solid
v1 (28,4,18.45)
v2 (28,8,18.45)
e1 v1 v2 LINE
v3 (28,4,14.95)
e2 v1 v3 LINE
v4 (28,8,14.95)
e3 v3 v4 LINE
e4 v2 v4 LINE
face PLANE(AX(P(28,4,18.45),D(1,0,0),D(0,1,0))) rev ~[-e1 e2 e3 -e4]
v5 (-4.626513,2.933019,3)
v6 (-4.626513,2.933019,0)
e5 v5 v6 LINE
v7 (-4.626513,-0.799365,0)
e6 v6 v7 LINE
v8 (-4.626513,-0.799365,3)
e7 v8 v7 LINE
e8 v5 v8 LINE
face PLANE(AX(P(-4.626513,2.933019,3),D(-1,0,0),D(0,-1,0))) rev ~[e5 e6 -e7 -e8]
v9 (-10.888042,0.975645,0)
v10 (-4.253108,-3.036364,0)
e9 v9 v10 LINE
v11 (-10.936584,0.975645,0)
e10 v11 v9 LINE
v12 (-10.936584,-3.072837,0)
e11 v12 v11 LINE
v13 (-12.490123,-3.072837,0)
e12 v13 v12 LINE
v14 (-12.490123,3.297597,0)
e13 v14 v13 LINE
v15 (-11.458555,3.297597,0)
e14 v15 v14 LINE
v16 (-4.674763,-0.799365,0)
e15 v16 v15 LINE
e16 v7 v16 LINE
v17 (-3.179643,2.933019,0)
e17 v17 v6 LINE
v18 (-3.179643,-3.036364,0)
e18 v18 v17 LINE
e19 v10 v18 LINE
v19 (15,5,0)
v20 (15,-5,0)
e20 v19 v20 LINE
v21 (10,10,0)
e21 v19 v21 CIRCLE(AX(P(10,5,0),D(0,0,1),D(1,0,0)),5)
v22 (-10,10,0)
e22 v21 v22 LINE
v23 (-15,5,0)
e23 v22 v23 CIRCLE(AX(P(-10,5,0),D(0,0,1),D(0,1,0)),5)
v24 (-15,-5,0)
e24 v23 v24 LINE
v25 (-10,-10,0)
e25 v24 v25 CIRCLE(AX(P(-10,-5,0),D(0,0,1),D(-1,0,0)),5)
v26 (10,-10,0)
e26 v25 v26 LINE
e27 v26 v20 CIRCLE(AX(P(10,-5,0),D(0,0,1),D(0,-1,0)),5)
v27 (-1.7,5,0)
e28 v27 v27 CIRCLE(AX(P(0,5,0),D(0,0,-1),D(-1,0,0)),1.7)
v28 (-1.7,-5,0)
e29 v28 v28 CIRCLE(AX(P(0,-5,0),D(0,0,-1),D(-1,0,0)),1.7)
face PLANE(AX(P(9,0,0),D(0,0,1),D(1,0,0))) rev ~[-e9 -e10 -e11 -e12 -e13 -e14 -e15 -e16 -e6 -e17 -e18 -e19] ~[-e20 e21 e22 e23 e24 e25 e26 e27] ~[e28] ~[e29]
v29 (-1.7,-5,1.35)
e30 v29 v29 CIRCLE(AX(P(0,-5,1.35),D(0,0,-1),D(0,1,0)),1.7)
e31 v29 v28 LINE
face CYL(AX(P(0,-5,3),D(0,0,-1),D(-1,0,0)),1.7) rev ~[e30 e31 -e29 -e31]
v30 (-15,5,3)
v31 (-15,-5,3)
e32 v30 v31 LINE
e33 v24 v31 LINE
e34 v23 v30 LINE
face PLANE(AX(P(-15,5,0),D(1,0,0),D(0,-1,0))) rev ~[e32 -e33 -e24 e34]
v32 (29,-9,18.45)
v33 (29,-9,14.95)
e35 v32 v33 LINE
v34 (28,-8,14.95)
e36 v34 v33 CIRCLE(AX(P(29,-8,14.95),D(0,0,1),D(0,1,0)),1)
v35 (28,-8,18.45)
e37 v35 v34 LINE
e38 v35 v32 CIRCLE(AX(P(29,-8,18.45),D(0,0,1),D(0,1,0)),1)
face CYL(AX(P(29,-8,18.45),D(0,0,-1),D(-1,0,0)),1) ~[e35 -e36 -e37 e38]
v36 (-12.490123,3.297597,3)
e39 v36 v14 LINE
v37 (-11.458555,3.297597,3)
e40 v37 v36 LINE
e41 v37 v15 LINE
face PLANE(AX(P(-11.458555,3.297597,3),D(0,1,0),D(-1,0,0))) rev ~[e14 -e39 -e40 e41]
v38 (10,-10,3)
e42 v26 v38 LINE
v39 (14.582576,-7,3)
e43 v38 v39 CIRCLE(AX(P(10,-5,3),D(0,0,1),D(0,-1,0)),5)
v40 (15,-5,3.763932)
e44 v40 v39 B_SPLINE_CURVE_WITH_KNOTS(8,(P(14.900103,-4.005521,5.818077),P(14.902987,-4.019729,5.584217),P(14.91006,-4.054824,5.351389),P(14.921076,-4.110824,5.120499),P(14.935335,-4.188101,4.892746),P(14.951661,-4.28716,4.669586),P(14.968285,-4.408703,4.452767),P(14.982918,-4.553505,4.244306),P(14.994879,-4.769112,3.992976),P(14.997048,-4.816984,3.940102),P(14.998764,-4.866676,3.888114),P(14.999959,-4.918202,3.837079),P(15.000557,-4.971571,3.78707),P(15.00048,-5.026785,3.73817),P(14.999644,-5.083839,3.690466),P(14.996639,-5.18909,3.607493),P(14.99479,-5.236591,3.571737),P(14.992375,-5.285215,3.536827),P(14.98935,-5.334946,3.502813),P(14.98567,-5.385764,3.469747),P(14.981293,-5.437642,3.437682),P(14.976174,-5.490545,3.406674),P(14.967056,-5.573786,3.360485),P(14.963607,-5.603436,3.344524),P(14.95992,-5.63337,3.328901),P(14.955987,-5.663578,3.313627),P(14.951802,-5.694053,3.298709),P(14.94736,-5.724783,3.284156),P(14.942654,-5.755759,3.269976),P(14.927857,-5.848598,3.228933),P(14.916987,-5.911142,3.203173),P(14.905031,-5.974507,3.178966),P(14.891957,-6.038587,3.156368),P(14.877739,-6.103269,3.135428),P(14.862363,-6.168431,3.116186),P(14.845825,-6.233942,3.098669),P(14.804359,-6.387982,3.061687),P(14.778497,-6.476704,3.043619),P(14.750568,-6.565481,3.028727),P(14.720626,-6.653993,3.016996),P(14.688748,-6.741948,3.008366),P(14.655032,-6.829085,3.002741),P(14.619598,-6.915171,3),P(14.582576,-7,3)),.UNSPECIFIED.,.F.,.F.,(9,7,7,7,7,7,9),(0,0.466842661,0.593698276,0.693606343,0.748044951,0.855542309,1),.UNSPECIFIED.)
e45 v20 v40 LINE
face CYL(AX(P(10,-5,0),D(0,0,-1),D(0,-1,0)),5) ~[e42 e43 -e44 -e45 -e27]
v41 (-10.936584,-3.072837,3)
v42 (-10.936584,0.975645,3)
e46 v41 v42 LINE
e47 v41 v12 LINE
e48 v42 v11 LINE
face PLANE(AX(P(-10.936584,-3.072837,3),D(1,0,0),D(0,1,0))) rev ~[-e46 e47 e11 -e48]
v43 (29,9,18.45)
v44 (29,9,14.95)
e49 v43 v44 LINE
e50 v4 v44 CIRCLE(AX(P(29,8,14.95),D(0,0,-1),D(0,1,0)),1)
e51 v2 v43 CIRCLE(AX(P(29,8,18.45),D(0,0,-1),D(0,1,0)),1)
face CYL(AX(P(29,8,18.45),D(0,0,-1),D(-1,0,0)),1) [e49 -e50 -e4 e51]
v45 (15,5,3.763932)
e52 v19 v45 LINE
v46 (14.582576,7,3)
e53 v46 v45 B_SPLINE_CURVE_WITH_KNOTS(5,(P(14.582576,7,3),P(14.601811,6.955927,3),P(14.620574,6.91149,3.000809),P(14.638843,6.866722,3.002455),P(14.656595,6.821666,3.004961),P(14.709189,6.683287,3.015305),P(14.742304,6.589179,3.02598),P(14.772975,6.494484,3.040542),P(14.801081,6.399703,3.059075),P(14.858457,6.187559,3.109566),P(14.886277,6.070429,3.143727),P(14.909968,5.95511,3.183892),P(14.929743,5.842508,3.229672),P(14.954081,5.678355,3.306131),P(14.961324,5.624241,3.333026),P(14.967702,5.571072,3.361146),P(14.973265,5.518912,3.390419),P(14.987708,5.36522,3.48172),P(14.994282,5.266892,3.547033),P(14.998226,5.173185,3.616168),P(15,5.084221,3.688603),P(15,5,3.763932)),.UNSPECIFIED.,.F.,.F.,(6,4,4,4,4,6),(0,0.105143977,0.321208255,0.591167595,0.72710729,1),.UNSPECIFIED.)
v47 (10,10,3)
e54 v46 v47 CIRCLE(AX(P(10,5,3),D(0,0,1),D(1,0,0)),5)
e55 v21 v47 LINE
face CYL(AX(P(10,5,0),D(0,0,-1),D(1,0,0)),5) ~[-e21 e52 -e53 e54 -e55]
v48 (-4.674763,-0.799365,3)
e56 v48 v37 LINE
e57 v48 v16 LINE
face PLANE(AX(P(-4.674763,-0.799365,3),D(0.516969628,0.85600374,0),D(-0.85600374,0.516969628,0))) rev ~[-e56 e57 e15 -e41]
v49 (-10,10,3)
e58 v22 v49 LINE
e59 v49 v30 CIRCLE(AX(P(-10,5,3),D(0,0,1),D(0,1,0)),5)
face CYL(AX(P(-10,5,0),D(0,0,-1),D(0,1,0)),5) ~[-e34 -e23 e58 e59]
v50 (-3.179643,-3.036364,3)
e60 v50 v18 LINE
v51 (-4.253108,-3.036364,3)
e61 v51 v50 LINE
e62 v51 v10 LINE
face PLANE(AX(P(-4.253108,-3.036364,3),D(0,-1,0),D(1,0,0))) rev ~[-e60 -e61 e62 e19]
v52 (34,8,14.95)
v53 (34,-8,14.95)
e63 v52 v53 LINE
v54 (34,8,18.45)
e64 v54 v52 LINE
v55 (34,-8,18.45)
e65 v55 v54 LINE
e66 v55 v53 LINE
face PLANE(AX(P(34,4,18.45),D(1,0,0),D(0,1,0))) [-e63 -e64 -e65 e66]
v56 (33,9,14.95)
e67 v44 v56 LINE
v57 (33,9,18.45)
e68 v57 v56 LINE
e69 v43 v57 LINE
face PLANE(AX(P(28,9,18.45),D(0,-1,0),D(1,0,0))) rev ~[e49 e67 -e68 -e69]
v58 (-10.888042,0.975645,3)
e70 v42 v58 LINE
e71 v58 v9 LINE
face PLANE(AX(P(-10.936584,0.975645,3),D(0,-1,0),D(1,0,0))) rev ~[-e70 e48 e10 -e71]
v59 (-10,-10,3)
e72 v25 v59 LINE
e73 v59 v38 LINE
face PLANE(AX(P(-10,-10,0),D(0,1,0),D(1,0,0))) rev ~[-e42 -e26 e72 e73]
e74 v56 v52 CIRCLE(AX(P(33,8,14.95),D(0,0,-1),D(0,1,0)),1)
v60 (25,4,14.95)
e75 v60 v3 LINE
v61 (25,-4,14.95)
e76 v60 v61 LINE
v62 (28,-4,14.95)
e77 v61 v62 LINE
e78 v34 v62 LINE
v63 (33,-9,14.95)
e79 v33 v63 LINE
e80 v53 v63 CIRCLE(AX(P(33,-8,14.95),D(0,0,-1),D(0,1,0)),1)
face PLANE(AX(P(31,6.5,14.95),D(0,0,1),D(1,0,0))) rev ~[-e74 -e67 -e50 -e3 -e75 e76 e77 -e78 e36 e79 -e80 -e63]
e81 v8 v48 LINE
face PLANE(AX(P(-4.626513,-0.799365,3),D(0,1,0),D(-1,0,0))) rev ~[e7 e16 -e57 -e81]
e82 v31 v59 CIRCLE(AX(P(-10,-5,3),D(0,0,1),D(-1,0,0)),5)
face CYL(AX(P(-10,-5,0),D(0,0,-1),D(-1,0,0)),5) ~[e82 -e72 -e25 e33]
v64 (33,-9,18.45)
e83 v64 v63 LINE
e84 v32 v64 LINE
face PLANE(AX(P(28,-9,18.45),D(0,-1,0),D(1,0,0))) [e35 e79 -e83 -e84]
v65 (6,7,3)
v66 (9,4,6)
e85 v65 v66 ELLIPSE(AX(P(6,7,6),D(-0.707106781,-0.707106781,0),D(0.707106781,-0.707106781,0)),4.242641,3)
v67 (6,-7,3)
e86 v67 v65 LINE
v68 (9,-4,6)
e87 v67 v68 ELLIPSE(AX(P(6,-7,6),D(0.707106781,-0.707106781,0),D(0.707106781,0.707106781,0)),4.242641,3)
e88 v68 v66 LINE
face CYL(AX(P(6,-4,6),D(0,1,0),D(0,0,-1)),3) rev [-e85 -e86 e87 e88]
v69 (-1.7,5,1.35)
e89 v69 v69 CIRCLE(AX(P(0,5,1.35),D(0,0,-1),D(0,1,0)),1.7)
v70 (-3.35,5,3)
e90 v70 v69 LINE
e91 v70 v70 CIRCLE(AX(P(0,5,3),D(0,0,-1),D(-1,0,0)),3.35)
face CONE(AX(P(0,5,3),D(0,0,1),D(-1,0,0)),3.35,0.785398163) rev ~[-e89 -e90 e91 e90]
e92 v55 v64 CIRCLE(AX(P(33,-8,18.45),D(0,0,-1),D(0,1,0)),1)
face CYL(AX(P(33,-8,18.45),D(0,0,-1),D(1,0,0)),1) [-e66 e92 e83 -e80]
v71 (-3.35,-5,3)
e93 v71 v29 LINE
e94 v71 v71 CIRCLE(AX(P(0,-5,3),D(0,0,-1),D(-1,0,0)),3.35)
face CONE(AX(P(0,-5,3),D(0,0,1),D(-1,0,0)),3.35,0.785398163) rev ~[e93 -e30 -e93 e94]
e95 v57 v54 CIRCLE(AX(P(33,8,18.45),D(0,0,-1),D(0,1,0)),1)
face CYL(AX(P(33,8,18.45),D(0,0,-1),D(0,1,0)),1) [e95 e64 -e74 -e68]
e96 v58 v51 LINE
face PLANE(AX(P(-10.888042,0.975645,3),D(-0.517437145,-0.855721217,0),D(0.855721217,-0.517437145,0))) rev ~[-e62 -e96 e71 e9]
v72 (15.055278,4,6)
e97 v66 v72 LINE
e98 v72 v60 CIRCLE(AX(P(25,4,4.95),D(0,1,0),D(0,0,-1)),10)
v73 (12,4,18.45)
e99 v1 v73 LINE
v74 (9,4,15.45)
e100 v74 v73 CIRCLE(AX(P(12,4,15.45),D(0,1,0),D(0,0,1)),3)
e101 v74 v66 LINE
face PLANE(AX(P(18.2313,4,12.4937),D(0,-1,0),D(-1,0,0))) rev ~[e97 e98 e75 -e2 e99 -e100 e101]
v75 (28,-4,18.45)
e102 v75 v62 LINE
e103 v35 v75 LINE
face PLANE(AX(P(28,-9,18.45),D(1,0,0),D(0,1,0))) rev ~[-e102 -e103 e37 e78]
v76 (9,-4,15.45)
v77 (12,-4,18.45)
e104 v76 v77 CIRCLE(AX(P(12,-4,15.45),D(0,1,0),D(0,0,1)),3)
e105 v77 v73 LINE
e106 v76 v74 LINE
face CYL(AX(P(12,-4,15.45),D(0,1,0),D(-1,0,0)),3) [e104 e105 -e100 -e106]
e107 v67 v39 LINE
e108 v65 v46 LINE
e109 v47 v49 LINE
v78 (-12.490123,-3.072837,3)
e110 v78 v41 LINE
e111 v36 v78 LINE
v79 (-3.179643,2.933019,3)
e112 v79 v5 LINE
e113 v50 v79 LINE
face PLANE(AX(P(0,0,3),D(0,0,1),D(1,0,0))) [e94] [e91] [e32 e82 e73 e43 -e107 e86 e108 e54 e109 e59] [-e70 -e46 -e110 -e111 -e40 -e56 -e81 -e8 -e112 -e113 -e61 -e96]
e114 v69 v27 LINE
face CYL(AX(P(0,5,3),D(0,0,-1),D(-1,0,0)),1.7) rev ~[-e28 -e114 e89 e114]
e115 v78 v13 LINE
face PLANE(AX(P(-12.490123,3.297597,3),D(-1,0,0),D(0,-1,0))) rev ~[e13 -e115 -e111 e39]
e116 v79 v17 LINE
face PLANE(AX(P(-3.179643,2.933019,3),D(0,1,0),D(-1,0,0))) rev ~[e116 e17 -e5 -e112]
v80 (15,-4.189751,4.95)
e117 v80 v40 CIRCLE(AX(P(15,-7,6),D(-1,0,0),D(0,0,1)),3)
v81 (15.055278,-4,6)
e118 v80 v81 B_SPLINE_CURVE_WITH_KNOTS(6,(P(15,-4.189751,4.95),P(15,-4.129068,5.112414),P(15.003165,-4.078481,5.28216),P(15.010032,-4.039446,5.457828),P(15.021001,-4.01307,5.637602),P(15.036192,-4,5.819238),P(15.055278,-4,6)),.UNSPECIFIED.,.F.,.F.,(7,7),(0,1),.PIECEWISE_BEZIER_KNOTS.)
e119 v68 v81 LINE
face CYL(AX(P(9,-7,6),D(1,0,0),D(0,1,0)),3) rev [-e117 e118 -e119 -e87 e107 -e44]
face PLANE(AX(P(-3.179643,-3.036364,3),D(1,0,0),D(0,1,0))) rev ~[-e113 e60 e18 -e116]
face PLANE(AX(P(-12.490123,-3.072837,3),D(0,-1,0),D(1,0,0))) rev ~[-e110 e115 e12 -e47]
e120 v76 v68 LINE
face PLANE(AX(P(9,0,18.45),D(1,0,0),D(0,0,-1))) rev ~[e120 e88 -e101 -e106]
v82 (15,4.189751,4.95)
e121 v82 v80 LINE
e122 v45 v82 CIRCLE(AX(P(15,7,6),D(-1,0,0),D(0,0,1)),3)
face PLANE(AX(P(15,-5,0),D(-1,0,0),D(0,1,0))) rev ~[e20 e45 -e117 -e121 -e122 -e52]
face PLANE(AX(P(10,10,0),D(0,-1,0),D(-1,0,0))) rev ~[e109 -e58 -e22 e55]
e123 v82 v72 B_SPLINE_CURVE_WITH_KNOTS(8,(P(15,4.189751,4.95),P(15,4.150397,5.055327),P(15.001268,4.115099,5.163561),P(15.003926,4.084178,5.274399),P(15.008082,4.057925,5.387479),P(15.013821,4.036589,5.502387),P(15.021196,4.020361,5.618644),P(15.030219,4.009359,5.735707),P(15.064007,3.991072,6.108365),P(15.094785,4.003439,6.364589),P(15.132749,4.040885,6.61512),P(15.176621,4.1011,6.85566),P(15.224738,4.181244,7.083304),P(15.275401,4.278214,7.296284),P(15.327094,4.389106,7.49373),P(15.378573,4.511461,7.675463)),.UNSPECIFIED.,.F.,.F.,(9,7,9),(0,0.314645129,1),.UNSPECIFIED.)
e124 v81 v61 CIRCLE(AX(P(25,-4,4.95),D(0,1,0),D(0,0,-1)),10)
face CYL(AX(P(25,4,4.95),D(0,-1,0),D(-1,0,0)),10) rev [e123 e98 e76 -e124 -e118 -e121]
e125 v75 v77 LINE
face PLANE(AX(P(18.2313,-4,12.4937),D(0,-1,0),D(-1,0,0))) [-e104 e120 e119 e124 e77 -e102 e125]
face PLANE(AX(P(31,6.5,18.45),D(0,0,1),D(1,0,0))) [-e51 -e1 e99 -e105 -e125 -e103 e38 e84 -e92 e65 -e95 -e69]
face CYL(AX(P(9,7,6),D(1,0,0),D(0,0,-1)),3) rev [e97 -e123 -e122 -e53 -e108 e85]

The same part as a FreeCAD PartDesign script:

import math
import FreeCAD as App
import Part
import Sketcher

V = App.Vector
Q = App.Units.Quantity


def edges_at(feature, points):
    """Names of the edges that pass closest to the given points."""
    edges = feature.Shape.Edges
    near = lambda p: min(range(len(edges)), key=lambda i: edges[i].distToShape(Part.Vertex(*p))[0])
    return sorted({f"Edge{near(p) + 1}" for p in points})


def add_polygon(sketch, points):
    """Adds a closed chain of lines whose ends are joined by coincident constraints."""
    first, n = sketch.GeometryCount, len(points)
    for a, b in zip(points, points[1:] + points[:1]):
        sketch.addGeometry(Part.LineSegment(App.Vector(*a, 0), App.Vector(*b, 0)), False)
    for i in range(n):
        sketch.addConstraint(Sketcher.Constraint("Coincident", first + i, 2, first + (i + 1) % n, 1))

doc = App.newDocument("Part")
body = doc.addObject("PartDesign::Body", "Body")

# Sketch on XY plane
sketch1 = doc.addObject("Sketcher::SketchObject", "Sketch")
body.addObject(sketch1)
sketch1.AttachmentSupport = (doc.XY_Plane, [""])
sketch1.MapMode = "FlatFace"
sketch1.addGeometry([
    Part.LineSegment(V(-10, -10, 0), V(10, -10, 0)),  # 0
    Part.ArcOfCircle(Part.Circle(V(10, -5, 0), V(0, 0, 1), 5), math.radians(-90), math.radians(0)),  # 1
    Part.LineSegment(V(15, -5, 0), V(15, 5, 0)),  # 2
    Part.ArcOfCircle(Part.Circle(V(10, 5, 0), V(0, 0, 1), 5), math.radians(0), math.radians(90)),  # 3
    Part.LineSegment(V(10, 10, 0), V(-10, 10, 0)),  # 4
    Part.ArcOfCircle(Part.Circle(V(-10, 5, 0), V(0, 0, 1), 5), math.radians(90), math.radians(180)),  # 5
    Part.LineSegment(V(-15, 5, 0), V(-15, -5, 0)),  # 6
    Part.ArcOfCircle(Part.Circle(V(-10, -5, 0), V(0, 0, 1), 5), math.radians(180), math.radians(270)),  # 7
], False)
sketch1.addConstraint([
    Sketcher.Constraint("Tangent", 0, 2, 1, 1),
    Sketcher.Constraint("Tangent", 1, 2, 2, 1),
    Sketcher.Constraint("Tangent", 2, 2, 3, 1),
    Sketcher.Constraint("Tangent", 3, 2, 4, 1),
    Sketcher.Constraint("Tangent", 4, 2, 5, 1),
    Sketcher.Constraint("Tangent", 5, 2, 6, 1),
    Sketcher.Constraint("Tangent", 6, 2, 7, 1),
    Sketcher.Constraint("Tangent", 7, 2, 0, 1),
    Sketcher.Constraint("Horizontal", 0),
    Sketcher.Constraint("Vertical", 2),
    Sketcher.Constraint("Horizontal", 4),
    Sketcher.Constraint("Vertical", 6),
    Sketcher.Constraint("Equal", 1, 3),
    Sketcher.Constraint("Equal", 3, 5),
    Sketcher.Constraint("Equal", 5, 7),
    Sketcher.Constraint("Symmetric", 1, 3, 5, 3, -1, 1),
    Sketcher.Constraint("Radius", 1, Q("5 mm")),
    Sketcher.Constraint("DistanceX", 0, 1, 0, 2, Q("20 mm")),
    Sketcher.Constraint("DistanceY", 2, 1, 2, 2, Q("10 mm")),
])
pad1 = doc.addObject("PartDesign::Pad", "Pad")
body.addObject(pad1)
pad1.Profile = sketch1
pad1.Length = 3

# Sketch on XZ plane
sketch2 = doc.addObject("Sketcher::SketchObject", "Sketch001")
body.addObject(sketch2)
sketch2.AttachmentSupport = (doc.XZ_Plane, [""])
sketch2.MapMode = "FlatFace"
add_polygon(sketch2, [(15, 14.9), (15, 0), (9, 0), (9, 18.4), (34, 18.4), (34, 14.9)])  # lines 0-5
sketch2.addConstraint([
    Sketcher.Constraint("Vertical", 0),
    Sketcher.Constraint("Horizontal", 1),
    Sketcher.Constraint("Vertical", 2),
    Sketcher.Constraint("Horizontal", 3),
    Sketcher.Constraint("Vertical", 4),
    Sketcher.Constraint("Horizontal", 5),
    Sketcher.Constraint("PointOnObject", 0, 2, -1),
    Sketcher.Constraint("DistanceX", 1, 2, 1, 1, Q("6 mm")),
    Sketcher.Constraint("DistanceX", 3, 1, 3, 2, Q("25 mm")),
    Sketcher.Constraint("DistanceY", 4, 2, 4, 1, Q("3.5 mm")),
    Sketcher.Constraint("DistanceX", -1, 1, 0, 2, Q("15 mm")),
    Sketcher.Constraint("DistanceY", 0, 2, 0, 1, Q("14.95 mm")),
])
pad2 = doc.addObject("PartDesign::Pad", "Pad001")
body.addObject(pad2)
pad2.Profile = sketch2
pad2.Length = 8
pad2.Midplane = True

# Sketch on XY plane
sketch3 = doc.addObject("Sketcher::SketchObject", "Sketch002")
body.addObject(sketch3)
sketch3.AttachmentSupport = (doc.XY_Plane, [""])
sketch3.MapMode = "FlatFace"
sketch3.AttachmentOffset = App.Placement(V(0, 0, 18.45), App.Rotation())
add_polygon(sketch3, [(28, 9), (28, 4), (34, 4), (34, 9)])  # lines 0-3
add_polygon(sketch3, [(28, -4), (28, -9), (34, -9), (34, -4)])  # lines 4-7
sketch3.addConstraint([
    Sketcher.Constraint("Vertical", 0),
    Sketcher.Constraint("Horizontal", 1),
    Sketcher.Constraint("Vertical", 2),
    Sketcher.Constraint("Horizontal", 3),
    Sketcher.Constraint("Vertical", 4),
    Sketcher.Constraint("Horizontal", 5),
    Sketcher.Constraint("Vertical", 6),
    Sketcher.Constraint("Horizontal", 7),
    Sketcher.Constraint("Symmetric", 3, 2, 4, 2, -1),
    Sketcher.Constraint("Symmetric", 1, 2, 6, 2, -1),
    Sketcher.Constraint("DistanceX", 1, 1, 1, 2, Q("6 mm")),
    Sketcher.Constraint("DistanceY", 0, 2, 0, 1, Q("5 mm")),
    Sketcher.Constraint("DistanceX", -1, 1, 0, 2, Q("28 mm")),
    Sketcher.Constraint("DistanceY", -1, 1, 0, 2, Q("4 mm")),
])
pad3 = doc.addObject("PartDesign::Pad", "Pad002")
body.addObject(pad3)
pad3.Profile = sketch3
pad3.Length = 3.5
pad3.Reversed = True
doc.recompute()

fillet = doc.addObject("PartDesign::Fillet", "Fillet")
body.addObject(fillet)
fillet.Base = (pad3, edges_at(pad3, [
    (12, 4, 3),
    (9, 0, 3),
    (12, -4, 3),
    (9, 0, 18.45),
]))
fillet.Radius = 3
doc.recompute()

fillet2 = doc.addObject("PartDesign::Fillet", "Fillet001")
body.addObject(fillet2)
fillet2.Base = (fillet, edges_at(fillet, [(15, 0, 14.95)]))
fillet2.Radius = 10

# Sketch on XY plane
sketch4 = doc.addObject("Sketcher::SketchObject", "Sketch003")
body.addObject(sketch4)
sketch4.AttachmentSupport = (doc.XY_Plane, [""])
sketch4.MapMode = "FlatFace"
sketch4.AttachmentOffset = App.Placement(V(0, 0, 3), App.Rotation())
sketch4.addGeometry([
    Part.Circle(V(0, 5, 0), V(0, 0, 1), 1.7),
    Part.Circle(V(0, -5, 0), V(0, 0, 1), 1.7),
], False)
sketch4.addConstraint([
    Sketcher.Constraint("Equal", 0, 1),
    Sketcher.Constraint("Symmetric", 0, 3, 1, 3, -1, 1),
    Sketcher.Constraint("PointOnObject", 0, 3, -2),
    Sketcher.Constraint("Diameter", 0, Q("3.4 mm")),
    Sketcher.Constraint("DistanceY", -1, 1, 0, 3, Q("5 mm")),
])
doc.recompute()
hole = doc.addObject("PartDesign::Hole", "Hole")
body.addObject(hole)
hole.Profile = sketch4
hole.ThreadType = "None"
hole.Diameter = 3.4
hole.DepthType = "Dimension"
hole.Depth = 20
hole.DrillPoint = "Angled"
hole.DrillPointAngle = 118
hole.HoleCutType = "Countersink"
hole.HoleCutDiameter = 6.7
hole.HoleCutCountersinkAngle = 90

# Sketch on XY plane
sketch5 = doc.addObject("Sketcher::SketchObject", "Sketch004")
body.addObject(sketch5)
sketch5.AttachmentSupport = (doc.XY_Plane, [""])
sketch5.MapMode = "FlatFace"
sketch5.AttachmentOffset = App.Placement(V(0, 0, 3), App.Rotation())
add_polygon(sketch5, [(-3.18, 2.933), (-4.627, 2.933), (-4.627, -0.799), (-4.675, -0.799), (-11.459, 3.298), (-12.49, 3.298), (-12.49, -3.073), (-10.937, -3.073), (-10.937, 0.976), (-10.888, 0.976), (-4.253, -3.036), (-3.18, -3.036)])  # lines 0-11
sketch5.addConstraint([
    Sketcher.Constraint("Horizontal", 0),
    Sketcher.Constraint("Vertical", 1),
    Sketcher.Constraint("Horizontal", 2),
    Sketcher.Constraint("Horizontal", 4),
    Sketcher.Constraint("Vertical", 5),
    Sketcher.Constraint("Horizontal", 6),
    Sketcher.Constraint("Vertical", 7),
    Sketcher.Constraint("Horizontal", 8),
    Sketcher.Constraint("Horizontal", 10),
    Sketcher.Constraint("Vertical", 11),
    Sketcher.Constraint("DistanceY", 9, 2, 1, 2, Q("2.236999 mm")),
    Sketcher.Constraint("DistanceX", 0, 2, 0, 1, Q("1.44687 mm")),
    Sketcher.Constraint("DistanceX", 2, 2, 2, 1, Q("0.04825 mm")),
    Sketcher.Constraint("DistanceX", 4, 2, 4, 1, Q("1.031568 mm")),
    Sketcher.Constraint("DistanceX", 6, 1, 6, 2, Q("1.553539 mm")),
    Sketcher.Constraint("DistanceX", 8, 1, 8, 2, Q("0.048541 mm")),
    Sketcher.Constraint("DistanceX", 10, 1, 10, 2, Q("1.073465 mm")),
    Sketcher.Constraint("DistanceY", 1, 2, 1, 1, Q("3.732384 mm")),
    Sketcher.Constraint("DistanceY", 5, 2, 5, 1, Q("6.370434 mm")),
    Sketcher.Constraint("DistanceY", 7, 1, 7, 2, Q("4.048482 mm")),
    Sketcher.Constraint("DistanceY", -1, 1, 0, 2, Q("2.933019 mm")),
    Sketcher.Constraint("DistanceX", 9, 2, -1, 1, Q("4.253108 mm")),
    Sketcher.Constraint("DistanceX", 3, 2, 0, 2, Q("6.832042 mm")),
    Sketcher.Constraint("DistanceY", 2, 2, 3, 2, Q("4.096962 mm")),
])
pocket1 = doc.addObject("PartDesign::Pocket", "Pocket")
body.addObject(pocket1)
pocket1.Profile = sketch5
pocket1.Length = 10
doc.recompute()

fillet3 = doc.addObject("PartDesign::Fillet", "Fillet002")
body.addObject(fillet3)
fillet3.Base = (pocket1, edges_at(pocket1, [
    (34, 9, 16.7),
    (28, 9, 16.7),
    (34, -9, 16.7),
    (28, -9, 16.7),
]))
fillet3.Radius = 1

doc.recompute()
